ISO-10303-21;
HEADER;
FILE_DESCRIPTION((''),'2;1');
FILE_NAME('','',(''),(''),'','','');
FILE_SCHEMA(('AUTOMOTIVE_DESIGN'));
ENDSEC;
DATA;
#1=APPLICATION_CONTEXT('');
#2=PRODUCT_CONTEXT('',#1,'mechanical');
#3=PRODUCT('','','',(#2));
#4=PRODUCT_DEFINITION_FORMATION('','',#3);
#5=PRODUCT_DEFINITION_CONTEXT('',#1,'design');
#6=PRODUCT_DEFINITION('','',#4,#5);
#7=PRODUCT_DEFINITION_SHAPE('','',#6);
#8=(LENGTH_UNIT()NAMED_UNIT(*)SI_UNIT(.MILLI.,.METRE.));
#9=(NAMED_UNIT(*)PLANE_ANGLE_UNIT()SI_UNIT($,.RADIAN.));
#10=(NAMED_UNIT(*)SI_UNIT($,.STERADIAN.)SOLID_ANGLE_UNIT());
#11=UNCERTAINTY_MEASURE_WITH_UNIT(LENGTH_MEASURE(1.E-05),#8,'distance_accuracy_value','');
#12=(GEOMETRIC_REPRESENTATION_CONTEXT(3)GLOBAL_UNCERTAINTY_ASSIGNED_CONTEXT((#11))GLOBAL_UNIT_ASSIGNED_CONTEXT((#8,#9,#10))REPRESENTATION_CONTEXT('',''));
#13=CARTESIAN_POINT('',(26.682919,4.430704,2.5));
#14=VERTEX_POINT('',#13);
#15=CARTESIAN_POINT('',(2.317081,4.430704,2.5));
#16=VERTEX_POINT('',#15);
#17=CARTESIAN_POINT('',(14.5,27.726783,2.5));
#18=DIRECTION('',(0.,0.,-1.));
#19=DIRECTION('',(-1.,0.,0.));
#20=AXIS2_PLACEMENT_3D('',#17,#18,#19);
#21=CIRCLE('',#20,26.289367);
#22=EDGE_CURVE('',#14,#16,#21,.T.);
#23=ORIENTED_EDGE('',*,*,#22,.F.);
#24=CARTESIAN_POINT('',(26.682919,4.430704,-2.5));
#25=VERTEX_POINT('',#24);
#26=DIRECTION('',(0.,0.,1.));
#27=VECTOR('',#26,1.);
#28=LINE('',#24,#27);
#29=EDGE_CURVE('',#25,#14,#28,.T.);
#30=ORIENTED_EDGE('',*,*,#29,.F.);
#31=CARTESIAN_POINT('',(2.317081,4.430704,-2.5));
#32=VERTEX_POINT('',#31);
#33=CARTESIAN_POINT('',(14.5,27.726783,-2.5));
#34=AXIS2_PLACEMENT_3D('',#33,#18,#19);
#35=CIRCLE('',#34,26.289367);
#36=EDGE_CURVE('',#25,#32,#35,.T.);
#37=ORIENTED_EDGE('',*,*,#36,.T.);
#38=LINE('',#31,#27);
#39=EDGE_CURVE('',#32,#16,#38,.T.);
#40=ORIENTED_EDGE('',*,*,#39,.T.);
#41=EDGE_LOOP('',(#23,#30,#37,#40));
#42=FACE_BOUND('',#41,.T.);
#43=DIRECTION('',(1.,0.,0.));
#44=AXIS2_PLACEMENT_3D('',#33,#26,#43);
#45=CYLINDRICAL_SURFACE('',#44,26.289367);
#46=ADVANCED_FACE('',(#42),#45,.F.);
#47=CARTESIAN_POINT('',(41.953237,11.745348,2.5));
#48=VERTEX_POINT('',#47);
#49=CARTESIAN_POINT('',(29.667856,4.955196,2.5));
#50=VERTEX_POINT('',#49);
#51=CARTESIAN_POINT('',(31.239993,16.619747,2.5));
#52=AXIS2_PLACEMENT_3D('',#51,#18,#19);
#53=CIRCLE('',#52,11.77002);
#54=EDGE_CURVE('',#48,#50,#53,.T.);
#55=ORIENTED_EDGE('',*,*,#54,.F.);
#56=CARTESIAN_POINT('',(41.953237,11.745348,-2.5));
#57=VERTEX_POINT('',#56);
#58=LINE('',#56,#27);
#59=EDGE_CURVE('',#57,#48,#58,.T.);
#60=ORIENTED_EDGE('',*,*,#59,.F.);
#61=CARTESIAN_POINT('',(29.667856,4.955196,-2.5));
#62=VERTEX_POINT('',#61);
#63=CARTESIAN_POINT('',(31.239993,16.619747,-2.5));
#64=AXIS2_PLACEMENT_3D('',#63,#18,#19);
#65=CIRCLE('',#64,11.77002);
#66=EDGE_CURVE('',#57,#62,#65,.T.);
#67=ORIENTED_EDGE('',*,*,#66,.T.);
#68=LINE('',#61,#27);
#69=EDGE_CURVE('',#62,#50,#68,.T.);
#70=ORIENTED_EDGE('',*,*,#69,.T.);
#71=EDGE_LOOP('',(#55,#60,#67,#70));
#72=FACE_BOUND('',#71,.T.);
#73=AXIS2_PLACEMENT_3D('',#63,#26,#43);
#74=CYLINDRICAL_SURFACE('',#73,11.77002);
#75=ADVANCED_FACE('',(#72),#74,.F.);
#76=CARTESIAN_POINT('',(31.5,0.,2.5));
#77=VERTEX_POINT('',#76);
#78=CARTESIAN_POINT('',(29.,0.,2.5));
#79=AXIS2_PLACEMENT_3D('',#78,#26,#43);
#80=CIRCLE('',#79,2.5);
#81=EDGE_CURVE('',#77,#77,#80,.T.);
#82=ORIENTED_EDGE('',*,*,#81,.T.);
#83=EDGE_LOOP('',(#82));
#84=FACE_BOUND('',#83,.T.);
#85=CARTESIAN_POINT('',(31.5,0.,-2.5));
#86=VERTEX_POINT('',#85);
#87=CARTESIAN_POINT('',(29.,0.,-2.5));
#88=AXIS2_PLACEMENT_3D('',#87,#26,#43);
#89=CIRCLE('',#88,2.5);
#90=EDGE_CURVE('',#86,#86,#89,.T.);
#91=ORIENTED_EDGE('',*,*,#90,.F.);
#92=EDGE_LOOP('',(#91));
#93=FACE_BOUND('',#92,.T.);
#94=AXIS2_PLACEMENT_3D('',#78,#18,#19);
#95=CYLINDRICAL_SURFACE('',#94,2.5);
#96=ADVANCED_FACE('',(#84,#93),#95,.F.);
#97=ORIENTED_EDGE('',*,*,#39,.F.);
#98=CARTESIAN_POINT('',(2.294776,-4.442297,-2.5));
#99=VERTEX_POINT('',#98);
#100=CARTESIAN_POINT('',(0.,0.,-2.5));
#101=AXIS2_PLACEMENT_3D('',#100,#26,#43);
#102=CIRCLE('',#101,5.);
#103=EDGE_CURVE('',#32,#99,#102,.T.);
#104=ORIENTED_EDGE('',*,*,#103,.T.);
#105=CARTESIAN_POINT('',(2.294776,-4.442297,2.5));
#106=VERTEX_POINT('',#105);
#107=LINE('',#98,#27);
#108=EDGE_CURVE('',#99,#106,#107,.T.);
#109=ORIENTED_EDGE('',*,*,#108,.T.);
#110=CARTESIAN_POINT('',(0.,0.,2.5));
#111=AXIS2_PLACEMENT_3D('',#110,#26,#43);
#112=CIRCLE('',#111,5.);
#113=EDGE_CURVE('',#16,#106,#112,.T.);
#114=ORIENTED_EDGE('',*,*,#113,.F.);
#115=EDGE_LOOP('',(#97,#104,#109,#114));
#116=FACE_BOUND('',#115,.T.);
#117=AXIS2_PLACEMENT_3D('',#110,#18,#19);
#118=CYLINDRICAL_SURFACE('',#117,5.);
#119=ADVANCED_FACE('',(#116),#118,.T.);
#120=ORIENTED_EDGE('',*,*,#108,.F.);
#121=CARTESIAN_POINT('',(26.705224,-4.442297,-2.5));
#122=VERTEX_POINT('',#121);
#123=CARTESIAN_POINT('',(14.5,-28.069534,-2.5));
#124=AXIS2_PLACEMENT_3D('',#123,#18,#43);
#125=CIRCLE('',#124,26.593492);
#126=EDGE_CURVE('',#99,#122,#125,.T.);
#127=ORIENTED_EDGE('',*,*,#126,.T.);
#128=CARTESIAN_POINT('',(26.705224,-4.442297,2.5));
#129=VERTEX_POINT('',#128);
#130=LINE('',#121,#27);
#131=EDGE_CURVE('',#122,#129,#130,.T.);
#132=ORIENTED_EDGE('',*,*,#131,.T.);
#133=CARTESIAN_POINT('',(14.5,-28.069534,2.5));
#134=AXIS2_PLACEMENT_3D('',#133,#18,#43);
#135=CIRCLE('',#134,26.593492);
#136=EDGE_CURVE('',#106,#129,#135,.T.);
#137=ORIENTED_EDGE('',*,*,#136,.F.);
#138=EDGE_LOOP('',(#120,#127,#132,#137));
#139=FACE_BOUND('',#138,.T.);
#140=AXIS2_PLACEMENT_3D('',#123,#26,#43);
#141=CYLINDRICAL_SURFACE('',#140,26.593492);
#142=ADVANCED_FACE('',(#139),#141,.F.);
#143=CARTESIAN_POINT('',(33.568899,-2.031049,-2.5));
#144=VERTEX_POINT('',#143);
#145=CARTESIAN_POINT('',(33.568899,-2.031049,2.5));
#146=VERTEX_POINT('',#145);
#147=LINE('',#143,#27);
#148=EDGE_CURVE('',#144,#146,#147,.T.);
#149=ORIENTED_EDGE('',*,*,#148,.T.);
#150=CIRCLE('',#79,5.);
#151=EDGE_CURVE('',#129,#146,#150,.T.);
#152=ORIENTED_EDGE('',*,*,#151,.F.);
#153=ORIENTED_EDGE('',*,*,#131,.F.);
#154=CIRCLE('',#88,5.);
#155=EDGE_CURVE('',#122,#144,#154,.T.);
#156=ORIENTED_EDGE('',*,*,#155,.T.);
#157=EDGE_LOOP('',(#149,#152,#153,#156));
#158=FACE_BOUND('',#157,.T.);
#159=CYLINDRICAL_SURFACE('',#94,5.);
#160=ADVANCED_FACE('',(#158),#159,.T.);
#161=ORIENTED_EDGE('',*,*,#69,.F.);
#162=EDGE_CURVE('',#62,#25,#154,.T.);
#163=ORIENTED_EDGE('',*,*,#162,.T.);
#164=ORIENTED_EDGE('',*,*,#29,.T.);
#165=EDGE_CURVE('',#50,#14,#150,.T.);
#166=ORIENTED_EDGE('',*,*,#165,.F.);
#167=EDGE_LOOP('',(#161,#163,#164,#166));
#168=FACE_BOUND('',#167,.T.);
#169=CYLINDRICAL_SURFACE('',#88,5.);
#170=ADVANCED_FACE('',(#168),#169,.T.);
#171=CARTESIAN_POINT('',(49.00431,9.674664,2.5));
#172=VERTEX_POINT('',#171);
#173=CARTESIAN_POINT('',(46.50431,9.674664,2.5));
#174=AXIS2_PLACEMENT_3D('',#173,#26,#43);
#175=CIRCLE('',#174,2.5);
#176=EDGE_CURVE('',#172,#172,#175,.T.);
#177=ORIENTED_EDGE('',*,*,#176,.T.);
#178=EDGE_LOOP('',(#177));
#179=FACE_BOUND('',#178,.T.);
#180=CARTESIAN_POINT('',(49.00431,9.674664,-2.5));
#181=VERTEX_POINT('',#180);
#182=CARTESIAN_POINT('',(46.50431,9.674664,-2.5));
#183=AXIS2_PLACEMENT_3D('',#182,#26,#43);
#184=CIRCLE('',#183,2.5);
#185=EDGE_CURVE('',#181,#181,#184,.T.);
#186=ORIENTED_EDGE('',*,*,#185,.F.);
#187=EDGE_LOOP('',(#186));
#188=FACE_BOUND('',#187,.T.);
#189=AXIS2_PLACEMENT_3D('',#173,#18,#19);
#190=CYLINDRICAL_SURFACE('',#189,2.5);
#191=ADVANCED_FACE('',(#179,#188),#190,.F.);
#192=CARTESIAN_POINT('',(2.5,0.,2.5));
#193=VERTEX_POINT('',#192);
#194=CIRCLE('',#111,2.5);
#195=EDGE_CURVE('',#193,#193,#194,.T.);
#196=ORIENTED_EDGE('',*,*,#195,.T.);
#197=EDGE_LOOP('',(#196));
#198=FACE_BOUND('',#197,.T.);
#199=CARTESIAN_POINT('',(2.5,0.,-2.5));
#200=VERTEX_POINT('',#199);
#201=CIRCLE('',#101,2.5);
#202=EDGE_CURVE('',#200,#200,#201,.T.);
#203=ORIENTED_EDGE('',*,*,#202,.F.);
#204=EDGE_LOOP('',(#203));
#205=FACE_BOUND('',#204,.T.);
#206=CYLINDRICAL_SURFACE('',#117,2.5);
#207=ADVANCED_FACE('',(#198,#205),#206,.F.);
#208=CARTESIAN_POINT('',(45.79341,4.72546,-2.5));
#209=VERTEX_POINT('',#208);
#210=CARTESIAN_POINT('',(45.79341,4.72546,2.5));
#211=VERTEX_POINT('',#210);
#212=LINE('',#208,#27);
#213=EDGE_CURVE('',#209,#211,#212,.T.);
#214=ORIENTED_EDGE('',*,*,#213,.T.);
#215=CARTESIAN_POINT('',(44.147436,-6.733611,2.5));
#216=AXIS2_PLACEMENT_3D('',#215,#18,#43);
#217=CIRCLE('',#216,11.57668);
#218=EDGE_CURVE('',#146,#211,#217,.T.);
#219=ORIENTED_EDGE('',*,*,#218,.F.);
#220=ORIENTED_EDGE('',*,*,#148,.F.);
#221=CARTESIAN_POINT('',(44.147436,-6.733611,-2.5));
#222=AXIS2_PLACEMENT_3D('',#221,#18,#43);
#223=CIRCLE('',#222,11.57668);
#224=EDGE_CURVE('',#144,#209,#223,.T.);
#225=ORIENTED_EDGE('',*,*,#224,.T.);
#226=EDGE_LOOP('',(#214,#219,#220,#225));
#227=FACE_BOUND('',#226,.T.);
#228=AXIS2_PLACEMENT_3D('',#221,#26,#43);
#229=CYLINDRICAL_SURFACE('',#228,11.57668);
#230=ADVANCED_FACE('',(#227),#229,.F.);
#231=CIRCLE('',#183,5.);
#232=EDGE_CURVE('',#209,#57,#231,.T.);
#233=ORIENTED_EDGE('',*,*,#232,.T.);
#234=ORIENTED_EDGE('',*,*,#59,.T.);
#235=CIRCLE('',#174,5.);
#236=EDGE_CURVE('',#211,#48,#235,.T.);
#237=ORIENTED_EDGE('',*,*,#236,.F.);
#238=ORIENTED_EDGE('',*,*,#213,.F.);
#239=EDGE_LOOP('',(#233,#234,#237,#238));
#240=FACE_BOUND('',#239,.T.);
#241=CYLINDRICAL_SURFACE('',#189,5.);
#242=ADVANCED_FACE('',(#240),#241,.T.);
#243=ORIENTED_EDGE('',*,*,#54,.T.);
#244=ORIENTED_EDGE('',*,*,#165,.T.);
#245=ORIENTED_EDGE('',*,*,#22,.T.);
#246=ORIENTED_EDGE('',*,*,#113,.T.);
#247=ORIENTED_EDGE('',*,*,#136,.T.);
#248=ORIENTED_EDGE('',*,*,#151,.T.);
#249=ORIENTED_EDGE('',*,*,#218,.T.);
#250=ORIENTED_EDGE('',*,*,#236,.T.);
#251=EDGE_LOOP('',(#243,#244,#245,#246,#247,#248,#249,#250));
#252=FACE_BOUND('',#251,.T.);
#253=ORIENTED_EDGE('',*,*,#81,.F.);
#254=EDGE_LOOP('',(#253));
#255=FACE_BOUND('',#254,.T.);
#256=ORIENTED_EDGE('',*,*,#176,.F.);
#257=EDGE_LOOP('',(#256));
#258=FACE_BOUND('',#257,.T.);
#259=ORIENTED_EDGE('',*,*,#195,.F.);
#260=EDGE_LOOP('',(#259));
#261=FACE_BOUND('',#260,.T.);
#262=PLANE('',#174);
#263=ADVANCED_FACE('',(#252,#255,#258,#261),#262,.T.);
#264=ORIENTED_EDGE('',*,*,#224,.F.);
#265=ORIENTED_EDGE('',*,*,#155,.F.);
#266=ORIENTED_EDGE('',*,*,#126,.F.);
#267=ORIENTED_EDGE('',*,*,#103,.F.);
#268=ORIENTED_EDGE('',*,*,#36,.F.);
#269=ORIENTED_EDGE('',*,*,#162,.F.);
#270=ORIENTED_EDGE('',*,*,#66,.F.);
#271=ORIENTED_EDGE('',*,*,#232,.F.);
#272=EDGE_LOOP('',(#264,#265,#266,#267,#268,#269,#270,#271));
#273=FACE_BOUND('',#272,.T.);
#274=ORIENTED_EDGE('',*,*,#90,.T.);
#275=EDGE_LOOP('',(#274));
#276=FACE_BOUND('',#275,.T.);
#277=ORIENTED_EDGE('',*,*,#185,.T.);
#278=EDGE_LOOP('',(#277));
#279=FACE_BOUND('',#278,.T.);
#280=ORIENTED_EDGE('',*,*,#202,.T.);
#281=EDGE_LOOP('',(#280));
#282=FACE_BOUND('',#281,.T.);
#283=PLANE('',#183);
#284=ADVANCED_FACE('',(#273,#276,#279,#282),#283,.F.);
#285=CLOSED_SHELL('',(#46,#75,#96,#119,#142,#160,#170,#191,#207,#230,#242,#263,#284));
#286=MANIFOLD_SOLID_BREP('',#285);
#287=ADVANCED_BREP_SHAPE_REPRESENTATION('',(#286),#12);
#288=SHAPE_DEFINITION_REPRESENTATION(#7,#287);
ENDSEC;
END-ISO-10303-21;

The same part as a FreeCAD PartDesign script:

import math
import FreeCAD as App
import Part
import Sketcher


def add_polygon(sketch, points):
    """Adds a closed chain of lines whose ends are joined by coincident constraints."""
    first, n = sketch.GeometryCount, len(points)
    for a, b in zip(points, points[1:] + points[:1]):
        sketch.addGeometry(Part.LineSegment(App.Vector(*a, 0), App.Vector(*b, 0)), False)
    for i in range(n):
        sketch.addConstraint(Sketcher.Constraint("Coincident", first + i, 2, first + (i + 1) % n, 1))

doc = App.newDocument("Part")
body = doc.addObject("PartDesign::Body", "Body")

# Sketch on XY plane
sketch1 = doc.addObject("Sketcher::SketchObject", "Sketch")
body.addObject(sketch1)
sketch1.AttachmentSupport = (doc.XY_Plane, [""])
sketch1.MapMode = "FlatFace"
sketch1.addGeometry([
    Part.LineSegment(App.Vector(45.485925, 14.569854, 0), App.Vector(-1.018386, 4.895191, 0)),  # 0
    Part.ArcOfCircle(Part.Circle(App.Vector(0, 0, 0), App.Vector(0, 0, 1), 5), math.radians(101.752071), math.radians(270)),  # 1
    Part.LineSegment(App.Vector(0, -5, 0), App.Vector(29, -5, 0)),  # 2
    Part.ArcOfCircle(Part.Circle(App.Vector(29, 0, 0), App.Vector(0, 0, 1), 5), math.radians(-90), math.radians(-61.070492)),  # 3
    Part.LineSegment(App.Vector(31.418666, -4.376078, 0), App.Vector(48.922976, 5.298586, 0)),  # 4
    Part.ArcOfCircle(Part.Circle(App.Vector(46.50431, 9.674664, 0), App.Vector(0, 0, 1), 5), math.radians(-61.070492), math.radians(101.752071)),  # 5
    Part.Circle(App.Vector(0, 0, 0), App.Vector(0, 0, 1), 2.5),  # 6
    Part.Circle(App.Vector(29, 0, 0), App.Vector(0, 0, 1), 2.5),  # 7
    Part.Circle(App.Vector(46.50431, 9.674664, 0), App.Vector(0, 0, 1), 2.5),  # 8
], False)
sketch1.addConstraint([
    Sketcher.Constraint("Tangent", 0, 2, 1, 1),
    Sketcher.Constraint("Tangent", 1, 2, 2, 1),
    Sketcher.Constraint("Tangent", 2, 2, 3, 1),
    Sketcher.Constraint("Tangent", 3, 2, 4, 1),
    Sketcher.Constraint("Tangent", 4, 2, 5, 1),
    Sketcher.Constraint("Tangent", 5, 2, 0, 1),
    Sketcher.Constraint("Horizontal", 2),
    Sketcher.Constraint("Coincident", 1, 3, -1, 1),
    Sketcher.Constraint("Coincident", 6, 3, -1, 1),
    Sketcher.Constraint("Coincident", 7, 3, 3, 3),
    Sketcher.Constraint("Coincident", 8, 3, 5, 3),
    Sketcher.Constraint("Equal", 1, 3),
    Sketcher.Constraint("Equal", 3, 5),
    Sketcher.Constraint("Equal", 6, 7),
    Sketcher.Constraint("Equal", 7, 8),
    Sketcher.Constraint("Diameter", 6, 5.0),
    Sketcher.Constraint("Radius", 1, 5.0),
    Sketcher.Constraint("DistanceX", 2, 1, 2, 2, 29.0),
    Sketcher.Constraint("Distance", 4, 20.0),
    Sketcher.Constraint("Distance", 0, 47.5),
])
pad1 = doc.addObject("PartDesign::Pad", "Pad")
body.addObject(pad1)
pad1.Profile = sketch1
pad1.Length = 5
pad1.Midplane = True

# Sketch on XY plane
sketch2 = doc.addObject("Sketcher::SketchObject", "Sketch001")
body.addObject(sketch2)
sketch2.AttachmentSupport = (doc.XY_Plane, [""])
sketch2.MapMode = "FlatFace"
sketch2.AttachmentOffset = App.Placement(App.Vector(0, 0, 2.5), App.Rotation())
add_polygon(sketch2, [(-12.004, 21.679), (-12.004, -12.004), (58.508, -12.004), (58.508, 21.679)])  # lines 0-3
sketch2.addGeometry(Part.ArcOfCircle(Part.Circle(App.Vector(46.50431, 9.674664, 0), App.Vector(0, 0, 1), 5), math.radians(-98.17402), math.radians(155.535028)), False)  # 4
sketch2.addGeometry(Part.ArcOfCircle(Part.Circle(App.Vector(44.147436, -6.733611, 0), App.Vector(0, 0, 1), 11.57668), math.radians(81.825979), math.radians(156.033036)), False)  # 5
sketch2.addGeometry(Part.ArcOfCircle(Part.Circle(App.Vector(29, 0, 0), App.Vector(0, 0, 1), 5), math.radians(-117.319714), math.radians(-23.966964)), False)  # 6
sketch2.addGeometry(Part.ArcOfCircle(Part.Circle(App.Vector(14.5, -28.069534, 0), App.Vector(0, 0, 1), 26.593492), math.radians(62.680286), math.radians(117.319714)), False)  # 7
sketch2.addGeometry(Part.ArcOfCircle(Part.Circle(App.Vector(0, 0, 0), App.Vector(0, 0, 1), 5), math.radians(62.39223), math.radians(297.319714)), False)  # 8
sketch2.addGeometry(Part.ArcOfCircle(Part.Circle(App.Vector(14.5, 27.726783, 0), App.Vector(0, 0, 1), 26.289367), math.radians(-117.60777), math.radians(-62.39223)), False)  # 9
sketch2.addGeometry(Part.ArcOfCircle(Part.Circle(App.Vector(29, 0, 0), App.Vector(0, 0, 1), 5), math.radians(82.323988), math.radians(117.60777)), False)  # 10
sketch2.addGeometry(Part.ArcOfCircle(Part.Circle(App.Vector(31.239993, 16.619747, 0), App.Vector(0, 0, 1), 11.77002), math.radians(-97.676012), math.radians(-24.464972)), False)  # 11
sketch2.addConstraint([
    Sketcher.Constraint("Tangent", 4, 1, 5, 1),
    Sketcher.Constraint("Tangent", 5, 2, 6, 2),
    Sketcher.Constraint("Tangent", 6, 1, 7, 1),
    Sketcher.Constraint("Tangent", 7, 2, 8, 2),
    Sketcher.Constraint("Tangent", 8, 1, 9, 1),
    Sketcher.Constraint("Tangent", 9, 2, 10, 2),
    Sketcher.Constraint("Tangent", 10, 1, 11, 1),
    Sketcher.Constraint("Tangent", 11, 2, 4, 2),
    Sketcher.Constraint("Vertical", 0),
    Sketcher.Constraint("Horizontal", 1),
    Sketcher.Constraint("Vertical", 2),
    Sketcher.Constraint("Horizontal", 3),
    Sketcher.Constraint("Coincident", 8, 3, -1, 1),
    Sketcher.Constraint("Coincident", 10, 3, 6, 3),
    Sketcher.Constraint("Equal", 4, 6),
    Sketcher.Constraint("Equal", 6, 8),
    Sketcher.Constraint("Equal", 8, 10),
    Sketcher.Constraint("PointOnObject", 6, 3, -1),
    Sketcher.Constraint("Radius", 4, 5.0),
    Sketcher.Constraint("DistanceX", -1, 1, 6, 3, 29.0),
    Sketcher.Constraint("DistanceX", 1, 1, 1, 2, 70.512),
    Sketcher.Constraint("DistanceY", 0, 2, 0, 1, 33.683),
    Sketcher.Constraint("Radius", 5, 11.57668),
    Sketcher.Constraint("Radius", 11, 11.77002),
    Sketcher.Constraint("DistanceX", 0, 2, -1, 1, 12.004),
    Sketcher.Constraint("DistanceY", 0, 2, -1, 1, 12.004),
    Sketcher.Constraint("Radius", 7, 26.593492),
    Sketcher.Constraint("Radius", 9, 26.289367),
    Sketcher.Constraint("DistanceX", -1, 1, 5, 2, 33.568899),
    Sketcher.Constraint("DistanceY", 7, 3, 4, 3, 37.744198),
])
pocket1 = doc.addObject("PartDesign::Pocket", "Pocket")
body.addObject(pocket1)
pocket1.Profile = sketch2
pocket1.Length = 5

doc.recompute()
